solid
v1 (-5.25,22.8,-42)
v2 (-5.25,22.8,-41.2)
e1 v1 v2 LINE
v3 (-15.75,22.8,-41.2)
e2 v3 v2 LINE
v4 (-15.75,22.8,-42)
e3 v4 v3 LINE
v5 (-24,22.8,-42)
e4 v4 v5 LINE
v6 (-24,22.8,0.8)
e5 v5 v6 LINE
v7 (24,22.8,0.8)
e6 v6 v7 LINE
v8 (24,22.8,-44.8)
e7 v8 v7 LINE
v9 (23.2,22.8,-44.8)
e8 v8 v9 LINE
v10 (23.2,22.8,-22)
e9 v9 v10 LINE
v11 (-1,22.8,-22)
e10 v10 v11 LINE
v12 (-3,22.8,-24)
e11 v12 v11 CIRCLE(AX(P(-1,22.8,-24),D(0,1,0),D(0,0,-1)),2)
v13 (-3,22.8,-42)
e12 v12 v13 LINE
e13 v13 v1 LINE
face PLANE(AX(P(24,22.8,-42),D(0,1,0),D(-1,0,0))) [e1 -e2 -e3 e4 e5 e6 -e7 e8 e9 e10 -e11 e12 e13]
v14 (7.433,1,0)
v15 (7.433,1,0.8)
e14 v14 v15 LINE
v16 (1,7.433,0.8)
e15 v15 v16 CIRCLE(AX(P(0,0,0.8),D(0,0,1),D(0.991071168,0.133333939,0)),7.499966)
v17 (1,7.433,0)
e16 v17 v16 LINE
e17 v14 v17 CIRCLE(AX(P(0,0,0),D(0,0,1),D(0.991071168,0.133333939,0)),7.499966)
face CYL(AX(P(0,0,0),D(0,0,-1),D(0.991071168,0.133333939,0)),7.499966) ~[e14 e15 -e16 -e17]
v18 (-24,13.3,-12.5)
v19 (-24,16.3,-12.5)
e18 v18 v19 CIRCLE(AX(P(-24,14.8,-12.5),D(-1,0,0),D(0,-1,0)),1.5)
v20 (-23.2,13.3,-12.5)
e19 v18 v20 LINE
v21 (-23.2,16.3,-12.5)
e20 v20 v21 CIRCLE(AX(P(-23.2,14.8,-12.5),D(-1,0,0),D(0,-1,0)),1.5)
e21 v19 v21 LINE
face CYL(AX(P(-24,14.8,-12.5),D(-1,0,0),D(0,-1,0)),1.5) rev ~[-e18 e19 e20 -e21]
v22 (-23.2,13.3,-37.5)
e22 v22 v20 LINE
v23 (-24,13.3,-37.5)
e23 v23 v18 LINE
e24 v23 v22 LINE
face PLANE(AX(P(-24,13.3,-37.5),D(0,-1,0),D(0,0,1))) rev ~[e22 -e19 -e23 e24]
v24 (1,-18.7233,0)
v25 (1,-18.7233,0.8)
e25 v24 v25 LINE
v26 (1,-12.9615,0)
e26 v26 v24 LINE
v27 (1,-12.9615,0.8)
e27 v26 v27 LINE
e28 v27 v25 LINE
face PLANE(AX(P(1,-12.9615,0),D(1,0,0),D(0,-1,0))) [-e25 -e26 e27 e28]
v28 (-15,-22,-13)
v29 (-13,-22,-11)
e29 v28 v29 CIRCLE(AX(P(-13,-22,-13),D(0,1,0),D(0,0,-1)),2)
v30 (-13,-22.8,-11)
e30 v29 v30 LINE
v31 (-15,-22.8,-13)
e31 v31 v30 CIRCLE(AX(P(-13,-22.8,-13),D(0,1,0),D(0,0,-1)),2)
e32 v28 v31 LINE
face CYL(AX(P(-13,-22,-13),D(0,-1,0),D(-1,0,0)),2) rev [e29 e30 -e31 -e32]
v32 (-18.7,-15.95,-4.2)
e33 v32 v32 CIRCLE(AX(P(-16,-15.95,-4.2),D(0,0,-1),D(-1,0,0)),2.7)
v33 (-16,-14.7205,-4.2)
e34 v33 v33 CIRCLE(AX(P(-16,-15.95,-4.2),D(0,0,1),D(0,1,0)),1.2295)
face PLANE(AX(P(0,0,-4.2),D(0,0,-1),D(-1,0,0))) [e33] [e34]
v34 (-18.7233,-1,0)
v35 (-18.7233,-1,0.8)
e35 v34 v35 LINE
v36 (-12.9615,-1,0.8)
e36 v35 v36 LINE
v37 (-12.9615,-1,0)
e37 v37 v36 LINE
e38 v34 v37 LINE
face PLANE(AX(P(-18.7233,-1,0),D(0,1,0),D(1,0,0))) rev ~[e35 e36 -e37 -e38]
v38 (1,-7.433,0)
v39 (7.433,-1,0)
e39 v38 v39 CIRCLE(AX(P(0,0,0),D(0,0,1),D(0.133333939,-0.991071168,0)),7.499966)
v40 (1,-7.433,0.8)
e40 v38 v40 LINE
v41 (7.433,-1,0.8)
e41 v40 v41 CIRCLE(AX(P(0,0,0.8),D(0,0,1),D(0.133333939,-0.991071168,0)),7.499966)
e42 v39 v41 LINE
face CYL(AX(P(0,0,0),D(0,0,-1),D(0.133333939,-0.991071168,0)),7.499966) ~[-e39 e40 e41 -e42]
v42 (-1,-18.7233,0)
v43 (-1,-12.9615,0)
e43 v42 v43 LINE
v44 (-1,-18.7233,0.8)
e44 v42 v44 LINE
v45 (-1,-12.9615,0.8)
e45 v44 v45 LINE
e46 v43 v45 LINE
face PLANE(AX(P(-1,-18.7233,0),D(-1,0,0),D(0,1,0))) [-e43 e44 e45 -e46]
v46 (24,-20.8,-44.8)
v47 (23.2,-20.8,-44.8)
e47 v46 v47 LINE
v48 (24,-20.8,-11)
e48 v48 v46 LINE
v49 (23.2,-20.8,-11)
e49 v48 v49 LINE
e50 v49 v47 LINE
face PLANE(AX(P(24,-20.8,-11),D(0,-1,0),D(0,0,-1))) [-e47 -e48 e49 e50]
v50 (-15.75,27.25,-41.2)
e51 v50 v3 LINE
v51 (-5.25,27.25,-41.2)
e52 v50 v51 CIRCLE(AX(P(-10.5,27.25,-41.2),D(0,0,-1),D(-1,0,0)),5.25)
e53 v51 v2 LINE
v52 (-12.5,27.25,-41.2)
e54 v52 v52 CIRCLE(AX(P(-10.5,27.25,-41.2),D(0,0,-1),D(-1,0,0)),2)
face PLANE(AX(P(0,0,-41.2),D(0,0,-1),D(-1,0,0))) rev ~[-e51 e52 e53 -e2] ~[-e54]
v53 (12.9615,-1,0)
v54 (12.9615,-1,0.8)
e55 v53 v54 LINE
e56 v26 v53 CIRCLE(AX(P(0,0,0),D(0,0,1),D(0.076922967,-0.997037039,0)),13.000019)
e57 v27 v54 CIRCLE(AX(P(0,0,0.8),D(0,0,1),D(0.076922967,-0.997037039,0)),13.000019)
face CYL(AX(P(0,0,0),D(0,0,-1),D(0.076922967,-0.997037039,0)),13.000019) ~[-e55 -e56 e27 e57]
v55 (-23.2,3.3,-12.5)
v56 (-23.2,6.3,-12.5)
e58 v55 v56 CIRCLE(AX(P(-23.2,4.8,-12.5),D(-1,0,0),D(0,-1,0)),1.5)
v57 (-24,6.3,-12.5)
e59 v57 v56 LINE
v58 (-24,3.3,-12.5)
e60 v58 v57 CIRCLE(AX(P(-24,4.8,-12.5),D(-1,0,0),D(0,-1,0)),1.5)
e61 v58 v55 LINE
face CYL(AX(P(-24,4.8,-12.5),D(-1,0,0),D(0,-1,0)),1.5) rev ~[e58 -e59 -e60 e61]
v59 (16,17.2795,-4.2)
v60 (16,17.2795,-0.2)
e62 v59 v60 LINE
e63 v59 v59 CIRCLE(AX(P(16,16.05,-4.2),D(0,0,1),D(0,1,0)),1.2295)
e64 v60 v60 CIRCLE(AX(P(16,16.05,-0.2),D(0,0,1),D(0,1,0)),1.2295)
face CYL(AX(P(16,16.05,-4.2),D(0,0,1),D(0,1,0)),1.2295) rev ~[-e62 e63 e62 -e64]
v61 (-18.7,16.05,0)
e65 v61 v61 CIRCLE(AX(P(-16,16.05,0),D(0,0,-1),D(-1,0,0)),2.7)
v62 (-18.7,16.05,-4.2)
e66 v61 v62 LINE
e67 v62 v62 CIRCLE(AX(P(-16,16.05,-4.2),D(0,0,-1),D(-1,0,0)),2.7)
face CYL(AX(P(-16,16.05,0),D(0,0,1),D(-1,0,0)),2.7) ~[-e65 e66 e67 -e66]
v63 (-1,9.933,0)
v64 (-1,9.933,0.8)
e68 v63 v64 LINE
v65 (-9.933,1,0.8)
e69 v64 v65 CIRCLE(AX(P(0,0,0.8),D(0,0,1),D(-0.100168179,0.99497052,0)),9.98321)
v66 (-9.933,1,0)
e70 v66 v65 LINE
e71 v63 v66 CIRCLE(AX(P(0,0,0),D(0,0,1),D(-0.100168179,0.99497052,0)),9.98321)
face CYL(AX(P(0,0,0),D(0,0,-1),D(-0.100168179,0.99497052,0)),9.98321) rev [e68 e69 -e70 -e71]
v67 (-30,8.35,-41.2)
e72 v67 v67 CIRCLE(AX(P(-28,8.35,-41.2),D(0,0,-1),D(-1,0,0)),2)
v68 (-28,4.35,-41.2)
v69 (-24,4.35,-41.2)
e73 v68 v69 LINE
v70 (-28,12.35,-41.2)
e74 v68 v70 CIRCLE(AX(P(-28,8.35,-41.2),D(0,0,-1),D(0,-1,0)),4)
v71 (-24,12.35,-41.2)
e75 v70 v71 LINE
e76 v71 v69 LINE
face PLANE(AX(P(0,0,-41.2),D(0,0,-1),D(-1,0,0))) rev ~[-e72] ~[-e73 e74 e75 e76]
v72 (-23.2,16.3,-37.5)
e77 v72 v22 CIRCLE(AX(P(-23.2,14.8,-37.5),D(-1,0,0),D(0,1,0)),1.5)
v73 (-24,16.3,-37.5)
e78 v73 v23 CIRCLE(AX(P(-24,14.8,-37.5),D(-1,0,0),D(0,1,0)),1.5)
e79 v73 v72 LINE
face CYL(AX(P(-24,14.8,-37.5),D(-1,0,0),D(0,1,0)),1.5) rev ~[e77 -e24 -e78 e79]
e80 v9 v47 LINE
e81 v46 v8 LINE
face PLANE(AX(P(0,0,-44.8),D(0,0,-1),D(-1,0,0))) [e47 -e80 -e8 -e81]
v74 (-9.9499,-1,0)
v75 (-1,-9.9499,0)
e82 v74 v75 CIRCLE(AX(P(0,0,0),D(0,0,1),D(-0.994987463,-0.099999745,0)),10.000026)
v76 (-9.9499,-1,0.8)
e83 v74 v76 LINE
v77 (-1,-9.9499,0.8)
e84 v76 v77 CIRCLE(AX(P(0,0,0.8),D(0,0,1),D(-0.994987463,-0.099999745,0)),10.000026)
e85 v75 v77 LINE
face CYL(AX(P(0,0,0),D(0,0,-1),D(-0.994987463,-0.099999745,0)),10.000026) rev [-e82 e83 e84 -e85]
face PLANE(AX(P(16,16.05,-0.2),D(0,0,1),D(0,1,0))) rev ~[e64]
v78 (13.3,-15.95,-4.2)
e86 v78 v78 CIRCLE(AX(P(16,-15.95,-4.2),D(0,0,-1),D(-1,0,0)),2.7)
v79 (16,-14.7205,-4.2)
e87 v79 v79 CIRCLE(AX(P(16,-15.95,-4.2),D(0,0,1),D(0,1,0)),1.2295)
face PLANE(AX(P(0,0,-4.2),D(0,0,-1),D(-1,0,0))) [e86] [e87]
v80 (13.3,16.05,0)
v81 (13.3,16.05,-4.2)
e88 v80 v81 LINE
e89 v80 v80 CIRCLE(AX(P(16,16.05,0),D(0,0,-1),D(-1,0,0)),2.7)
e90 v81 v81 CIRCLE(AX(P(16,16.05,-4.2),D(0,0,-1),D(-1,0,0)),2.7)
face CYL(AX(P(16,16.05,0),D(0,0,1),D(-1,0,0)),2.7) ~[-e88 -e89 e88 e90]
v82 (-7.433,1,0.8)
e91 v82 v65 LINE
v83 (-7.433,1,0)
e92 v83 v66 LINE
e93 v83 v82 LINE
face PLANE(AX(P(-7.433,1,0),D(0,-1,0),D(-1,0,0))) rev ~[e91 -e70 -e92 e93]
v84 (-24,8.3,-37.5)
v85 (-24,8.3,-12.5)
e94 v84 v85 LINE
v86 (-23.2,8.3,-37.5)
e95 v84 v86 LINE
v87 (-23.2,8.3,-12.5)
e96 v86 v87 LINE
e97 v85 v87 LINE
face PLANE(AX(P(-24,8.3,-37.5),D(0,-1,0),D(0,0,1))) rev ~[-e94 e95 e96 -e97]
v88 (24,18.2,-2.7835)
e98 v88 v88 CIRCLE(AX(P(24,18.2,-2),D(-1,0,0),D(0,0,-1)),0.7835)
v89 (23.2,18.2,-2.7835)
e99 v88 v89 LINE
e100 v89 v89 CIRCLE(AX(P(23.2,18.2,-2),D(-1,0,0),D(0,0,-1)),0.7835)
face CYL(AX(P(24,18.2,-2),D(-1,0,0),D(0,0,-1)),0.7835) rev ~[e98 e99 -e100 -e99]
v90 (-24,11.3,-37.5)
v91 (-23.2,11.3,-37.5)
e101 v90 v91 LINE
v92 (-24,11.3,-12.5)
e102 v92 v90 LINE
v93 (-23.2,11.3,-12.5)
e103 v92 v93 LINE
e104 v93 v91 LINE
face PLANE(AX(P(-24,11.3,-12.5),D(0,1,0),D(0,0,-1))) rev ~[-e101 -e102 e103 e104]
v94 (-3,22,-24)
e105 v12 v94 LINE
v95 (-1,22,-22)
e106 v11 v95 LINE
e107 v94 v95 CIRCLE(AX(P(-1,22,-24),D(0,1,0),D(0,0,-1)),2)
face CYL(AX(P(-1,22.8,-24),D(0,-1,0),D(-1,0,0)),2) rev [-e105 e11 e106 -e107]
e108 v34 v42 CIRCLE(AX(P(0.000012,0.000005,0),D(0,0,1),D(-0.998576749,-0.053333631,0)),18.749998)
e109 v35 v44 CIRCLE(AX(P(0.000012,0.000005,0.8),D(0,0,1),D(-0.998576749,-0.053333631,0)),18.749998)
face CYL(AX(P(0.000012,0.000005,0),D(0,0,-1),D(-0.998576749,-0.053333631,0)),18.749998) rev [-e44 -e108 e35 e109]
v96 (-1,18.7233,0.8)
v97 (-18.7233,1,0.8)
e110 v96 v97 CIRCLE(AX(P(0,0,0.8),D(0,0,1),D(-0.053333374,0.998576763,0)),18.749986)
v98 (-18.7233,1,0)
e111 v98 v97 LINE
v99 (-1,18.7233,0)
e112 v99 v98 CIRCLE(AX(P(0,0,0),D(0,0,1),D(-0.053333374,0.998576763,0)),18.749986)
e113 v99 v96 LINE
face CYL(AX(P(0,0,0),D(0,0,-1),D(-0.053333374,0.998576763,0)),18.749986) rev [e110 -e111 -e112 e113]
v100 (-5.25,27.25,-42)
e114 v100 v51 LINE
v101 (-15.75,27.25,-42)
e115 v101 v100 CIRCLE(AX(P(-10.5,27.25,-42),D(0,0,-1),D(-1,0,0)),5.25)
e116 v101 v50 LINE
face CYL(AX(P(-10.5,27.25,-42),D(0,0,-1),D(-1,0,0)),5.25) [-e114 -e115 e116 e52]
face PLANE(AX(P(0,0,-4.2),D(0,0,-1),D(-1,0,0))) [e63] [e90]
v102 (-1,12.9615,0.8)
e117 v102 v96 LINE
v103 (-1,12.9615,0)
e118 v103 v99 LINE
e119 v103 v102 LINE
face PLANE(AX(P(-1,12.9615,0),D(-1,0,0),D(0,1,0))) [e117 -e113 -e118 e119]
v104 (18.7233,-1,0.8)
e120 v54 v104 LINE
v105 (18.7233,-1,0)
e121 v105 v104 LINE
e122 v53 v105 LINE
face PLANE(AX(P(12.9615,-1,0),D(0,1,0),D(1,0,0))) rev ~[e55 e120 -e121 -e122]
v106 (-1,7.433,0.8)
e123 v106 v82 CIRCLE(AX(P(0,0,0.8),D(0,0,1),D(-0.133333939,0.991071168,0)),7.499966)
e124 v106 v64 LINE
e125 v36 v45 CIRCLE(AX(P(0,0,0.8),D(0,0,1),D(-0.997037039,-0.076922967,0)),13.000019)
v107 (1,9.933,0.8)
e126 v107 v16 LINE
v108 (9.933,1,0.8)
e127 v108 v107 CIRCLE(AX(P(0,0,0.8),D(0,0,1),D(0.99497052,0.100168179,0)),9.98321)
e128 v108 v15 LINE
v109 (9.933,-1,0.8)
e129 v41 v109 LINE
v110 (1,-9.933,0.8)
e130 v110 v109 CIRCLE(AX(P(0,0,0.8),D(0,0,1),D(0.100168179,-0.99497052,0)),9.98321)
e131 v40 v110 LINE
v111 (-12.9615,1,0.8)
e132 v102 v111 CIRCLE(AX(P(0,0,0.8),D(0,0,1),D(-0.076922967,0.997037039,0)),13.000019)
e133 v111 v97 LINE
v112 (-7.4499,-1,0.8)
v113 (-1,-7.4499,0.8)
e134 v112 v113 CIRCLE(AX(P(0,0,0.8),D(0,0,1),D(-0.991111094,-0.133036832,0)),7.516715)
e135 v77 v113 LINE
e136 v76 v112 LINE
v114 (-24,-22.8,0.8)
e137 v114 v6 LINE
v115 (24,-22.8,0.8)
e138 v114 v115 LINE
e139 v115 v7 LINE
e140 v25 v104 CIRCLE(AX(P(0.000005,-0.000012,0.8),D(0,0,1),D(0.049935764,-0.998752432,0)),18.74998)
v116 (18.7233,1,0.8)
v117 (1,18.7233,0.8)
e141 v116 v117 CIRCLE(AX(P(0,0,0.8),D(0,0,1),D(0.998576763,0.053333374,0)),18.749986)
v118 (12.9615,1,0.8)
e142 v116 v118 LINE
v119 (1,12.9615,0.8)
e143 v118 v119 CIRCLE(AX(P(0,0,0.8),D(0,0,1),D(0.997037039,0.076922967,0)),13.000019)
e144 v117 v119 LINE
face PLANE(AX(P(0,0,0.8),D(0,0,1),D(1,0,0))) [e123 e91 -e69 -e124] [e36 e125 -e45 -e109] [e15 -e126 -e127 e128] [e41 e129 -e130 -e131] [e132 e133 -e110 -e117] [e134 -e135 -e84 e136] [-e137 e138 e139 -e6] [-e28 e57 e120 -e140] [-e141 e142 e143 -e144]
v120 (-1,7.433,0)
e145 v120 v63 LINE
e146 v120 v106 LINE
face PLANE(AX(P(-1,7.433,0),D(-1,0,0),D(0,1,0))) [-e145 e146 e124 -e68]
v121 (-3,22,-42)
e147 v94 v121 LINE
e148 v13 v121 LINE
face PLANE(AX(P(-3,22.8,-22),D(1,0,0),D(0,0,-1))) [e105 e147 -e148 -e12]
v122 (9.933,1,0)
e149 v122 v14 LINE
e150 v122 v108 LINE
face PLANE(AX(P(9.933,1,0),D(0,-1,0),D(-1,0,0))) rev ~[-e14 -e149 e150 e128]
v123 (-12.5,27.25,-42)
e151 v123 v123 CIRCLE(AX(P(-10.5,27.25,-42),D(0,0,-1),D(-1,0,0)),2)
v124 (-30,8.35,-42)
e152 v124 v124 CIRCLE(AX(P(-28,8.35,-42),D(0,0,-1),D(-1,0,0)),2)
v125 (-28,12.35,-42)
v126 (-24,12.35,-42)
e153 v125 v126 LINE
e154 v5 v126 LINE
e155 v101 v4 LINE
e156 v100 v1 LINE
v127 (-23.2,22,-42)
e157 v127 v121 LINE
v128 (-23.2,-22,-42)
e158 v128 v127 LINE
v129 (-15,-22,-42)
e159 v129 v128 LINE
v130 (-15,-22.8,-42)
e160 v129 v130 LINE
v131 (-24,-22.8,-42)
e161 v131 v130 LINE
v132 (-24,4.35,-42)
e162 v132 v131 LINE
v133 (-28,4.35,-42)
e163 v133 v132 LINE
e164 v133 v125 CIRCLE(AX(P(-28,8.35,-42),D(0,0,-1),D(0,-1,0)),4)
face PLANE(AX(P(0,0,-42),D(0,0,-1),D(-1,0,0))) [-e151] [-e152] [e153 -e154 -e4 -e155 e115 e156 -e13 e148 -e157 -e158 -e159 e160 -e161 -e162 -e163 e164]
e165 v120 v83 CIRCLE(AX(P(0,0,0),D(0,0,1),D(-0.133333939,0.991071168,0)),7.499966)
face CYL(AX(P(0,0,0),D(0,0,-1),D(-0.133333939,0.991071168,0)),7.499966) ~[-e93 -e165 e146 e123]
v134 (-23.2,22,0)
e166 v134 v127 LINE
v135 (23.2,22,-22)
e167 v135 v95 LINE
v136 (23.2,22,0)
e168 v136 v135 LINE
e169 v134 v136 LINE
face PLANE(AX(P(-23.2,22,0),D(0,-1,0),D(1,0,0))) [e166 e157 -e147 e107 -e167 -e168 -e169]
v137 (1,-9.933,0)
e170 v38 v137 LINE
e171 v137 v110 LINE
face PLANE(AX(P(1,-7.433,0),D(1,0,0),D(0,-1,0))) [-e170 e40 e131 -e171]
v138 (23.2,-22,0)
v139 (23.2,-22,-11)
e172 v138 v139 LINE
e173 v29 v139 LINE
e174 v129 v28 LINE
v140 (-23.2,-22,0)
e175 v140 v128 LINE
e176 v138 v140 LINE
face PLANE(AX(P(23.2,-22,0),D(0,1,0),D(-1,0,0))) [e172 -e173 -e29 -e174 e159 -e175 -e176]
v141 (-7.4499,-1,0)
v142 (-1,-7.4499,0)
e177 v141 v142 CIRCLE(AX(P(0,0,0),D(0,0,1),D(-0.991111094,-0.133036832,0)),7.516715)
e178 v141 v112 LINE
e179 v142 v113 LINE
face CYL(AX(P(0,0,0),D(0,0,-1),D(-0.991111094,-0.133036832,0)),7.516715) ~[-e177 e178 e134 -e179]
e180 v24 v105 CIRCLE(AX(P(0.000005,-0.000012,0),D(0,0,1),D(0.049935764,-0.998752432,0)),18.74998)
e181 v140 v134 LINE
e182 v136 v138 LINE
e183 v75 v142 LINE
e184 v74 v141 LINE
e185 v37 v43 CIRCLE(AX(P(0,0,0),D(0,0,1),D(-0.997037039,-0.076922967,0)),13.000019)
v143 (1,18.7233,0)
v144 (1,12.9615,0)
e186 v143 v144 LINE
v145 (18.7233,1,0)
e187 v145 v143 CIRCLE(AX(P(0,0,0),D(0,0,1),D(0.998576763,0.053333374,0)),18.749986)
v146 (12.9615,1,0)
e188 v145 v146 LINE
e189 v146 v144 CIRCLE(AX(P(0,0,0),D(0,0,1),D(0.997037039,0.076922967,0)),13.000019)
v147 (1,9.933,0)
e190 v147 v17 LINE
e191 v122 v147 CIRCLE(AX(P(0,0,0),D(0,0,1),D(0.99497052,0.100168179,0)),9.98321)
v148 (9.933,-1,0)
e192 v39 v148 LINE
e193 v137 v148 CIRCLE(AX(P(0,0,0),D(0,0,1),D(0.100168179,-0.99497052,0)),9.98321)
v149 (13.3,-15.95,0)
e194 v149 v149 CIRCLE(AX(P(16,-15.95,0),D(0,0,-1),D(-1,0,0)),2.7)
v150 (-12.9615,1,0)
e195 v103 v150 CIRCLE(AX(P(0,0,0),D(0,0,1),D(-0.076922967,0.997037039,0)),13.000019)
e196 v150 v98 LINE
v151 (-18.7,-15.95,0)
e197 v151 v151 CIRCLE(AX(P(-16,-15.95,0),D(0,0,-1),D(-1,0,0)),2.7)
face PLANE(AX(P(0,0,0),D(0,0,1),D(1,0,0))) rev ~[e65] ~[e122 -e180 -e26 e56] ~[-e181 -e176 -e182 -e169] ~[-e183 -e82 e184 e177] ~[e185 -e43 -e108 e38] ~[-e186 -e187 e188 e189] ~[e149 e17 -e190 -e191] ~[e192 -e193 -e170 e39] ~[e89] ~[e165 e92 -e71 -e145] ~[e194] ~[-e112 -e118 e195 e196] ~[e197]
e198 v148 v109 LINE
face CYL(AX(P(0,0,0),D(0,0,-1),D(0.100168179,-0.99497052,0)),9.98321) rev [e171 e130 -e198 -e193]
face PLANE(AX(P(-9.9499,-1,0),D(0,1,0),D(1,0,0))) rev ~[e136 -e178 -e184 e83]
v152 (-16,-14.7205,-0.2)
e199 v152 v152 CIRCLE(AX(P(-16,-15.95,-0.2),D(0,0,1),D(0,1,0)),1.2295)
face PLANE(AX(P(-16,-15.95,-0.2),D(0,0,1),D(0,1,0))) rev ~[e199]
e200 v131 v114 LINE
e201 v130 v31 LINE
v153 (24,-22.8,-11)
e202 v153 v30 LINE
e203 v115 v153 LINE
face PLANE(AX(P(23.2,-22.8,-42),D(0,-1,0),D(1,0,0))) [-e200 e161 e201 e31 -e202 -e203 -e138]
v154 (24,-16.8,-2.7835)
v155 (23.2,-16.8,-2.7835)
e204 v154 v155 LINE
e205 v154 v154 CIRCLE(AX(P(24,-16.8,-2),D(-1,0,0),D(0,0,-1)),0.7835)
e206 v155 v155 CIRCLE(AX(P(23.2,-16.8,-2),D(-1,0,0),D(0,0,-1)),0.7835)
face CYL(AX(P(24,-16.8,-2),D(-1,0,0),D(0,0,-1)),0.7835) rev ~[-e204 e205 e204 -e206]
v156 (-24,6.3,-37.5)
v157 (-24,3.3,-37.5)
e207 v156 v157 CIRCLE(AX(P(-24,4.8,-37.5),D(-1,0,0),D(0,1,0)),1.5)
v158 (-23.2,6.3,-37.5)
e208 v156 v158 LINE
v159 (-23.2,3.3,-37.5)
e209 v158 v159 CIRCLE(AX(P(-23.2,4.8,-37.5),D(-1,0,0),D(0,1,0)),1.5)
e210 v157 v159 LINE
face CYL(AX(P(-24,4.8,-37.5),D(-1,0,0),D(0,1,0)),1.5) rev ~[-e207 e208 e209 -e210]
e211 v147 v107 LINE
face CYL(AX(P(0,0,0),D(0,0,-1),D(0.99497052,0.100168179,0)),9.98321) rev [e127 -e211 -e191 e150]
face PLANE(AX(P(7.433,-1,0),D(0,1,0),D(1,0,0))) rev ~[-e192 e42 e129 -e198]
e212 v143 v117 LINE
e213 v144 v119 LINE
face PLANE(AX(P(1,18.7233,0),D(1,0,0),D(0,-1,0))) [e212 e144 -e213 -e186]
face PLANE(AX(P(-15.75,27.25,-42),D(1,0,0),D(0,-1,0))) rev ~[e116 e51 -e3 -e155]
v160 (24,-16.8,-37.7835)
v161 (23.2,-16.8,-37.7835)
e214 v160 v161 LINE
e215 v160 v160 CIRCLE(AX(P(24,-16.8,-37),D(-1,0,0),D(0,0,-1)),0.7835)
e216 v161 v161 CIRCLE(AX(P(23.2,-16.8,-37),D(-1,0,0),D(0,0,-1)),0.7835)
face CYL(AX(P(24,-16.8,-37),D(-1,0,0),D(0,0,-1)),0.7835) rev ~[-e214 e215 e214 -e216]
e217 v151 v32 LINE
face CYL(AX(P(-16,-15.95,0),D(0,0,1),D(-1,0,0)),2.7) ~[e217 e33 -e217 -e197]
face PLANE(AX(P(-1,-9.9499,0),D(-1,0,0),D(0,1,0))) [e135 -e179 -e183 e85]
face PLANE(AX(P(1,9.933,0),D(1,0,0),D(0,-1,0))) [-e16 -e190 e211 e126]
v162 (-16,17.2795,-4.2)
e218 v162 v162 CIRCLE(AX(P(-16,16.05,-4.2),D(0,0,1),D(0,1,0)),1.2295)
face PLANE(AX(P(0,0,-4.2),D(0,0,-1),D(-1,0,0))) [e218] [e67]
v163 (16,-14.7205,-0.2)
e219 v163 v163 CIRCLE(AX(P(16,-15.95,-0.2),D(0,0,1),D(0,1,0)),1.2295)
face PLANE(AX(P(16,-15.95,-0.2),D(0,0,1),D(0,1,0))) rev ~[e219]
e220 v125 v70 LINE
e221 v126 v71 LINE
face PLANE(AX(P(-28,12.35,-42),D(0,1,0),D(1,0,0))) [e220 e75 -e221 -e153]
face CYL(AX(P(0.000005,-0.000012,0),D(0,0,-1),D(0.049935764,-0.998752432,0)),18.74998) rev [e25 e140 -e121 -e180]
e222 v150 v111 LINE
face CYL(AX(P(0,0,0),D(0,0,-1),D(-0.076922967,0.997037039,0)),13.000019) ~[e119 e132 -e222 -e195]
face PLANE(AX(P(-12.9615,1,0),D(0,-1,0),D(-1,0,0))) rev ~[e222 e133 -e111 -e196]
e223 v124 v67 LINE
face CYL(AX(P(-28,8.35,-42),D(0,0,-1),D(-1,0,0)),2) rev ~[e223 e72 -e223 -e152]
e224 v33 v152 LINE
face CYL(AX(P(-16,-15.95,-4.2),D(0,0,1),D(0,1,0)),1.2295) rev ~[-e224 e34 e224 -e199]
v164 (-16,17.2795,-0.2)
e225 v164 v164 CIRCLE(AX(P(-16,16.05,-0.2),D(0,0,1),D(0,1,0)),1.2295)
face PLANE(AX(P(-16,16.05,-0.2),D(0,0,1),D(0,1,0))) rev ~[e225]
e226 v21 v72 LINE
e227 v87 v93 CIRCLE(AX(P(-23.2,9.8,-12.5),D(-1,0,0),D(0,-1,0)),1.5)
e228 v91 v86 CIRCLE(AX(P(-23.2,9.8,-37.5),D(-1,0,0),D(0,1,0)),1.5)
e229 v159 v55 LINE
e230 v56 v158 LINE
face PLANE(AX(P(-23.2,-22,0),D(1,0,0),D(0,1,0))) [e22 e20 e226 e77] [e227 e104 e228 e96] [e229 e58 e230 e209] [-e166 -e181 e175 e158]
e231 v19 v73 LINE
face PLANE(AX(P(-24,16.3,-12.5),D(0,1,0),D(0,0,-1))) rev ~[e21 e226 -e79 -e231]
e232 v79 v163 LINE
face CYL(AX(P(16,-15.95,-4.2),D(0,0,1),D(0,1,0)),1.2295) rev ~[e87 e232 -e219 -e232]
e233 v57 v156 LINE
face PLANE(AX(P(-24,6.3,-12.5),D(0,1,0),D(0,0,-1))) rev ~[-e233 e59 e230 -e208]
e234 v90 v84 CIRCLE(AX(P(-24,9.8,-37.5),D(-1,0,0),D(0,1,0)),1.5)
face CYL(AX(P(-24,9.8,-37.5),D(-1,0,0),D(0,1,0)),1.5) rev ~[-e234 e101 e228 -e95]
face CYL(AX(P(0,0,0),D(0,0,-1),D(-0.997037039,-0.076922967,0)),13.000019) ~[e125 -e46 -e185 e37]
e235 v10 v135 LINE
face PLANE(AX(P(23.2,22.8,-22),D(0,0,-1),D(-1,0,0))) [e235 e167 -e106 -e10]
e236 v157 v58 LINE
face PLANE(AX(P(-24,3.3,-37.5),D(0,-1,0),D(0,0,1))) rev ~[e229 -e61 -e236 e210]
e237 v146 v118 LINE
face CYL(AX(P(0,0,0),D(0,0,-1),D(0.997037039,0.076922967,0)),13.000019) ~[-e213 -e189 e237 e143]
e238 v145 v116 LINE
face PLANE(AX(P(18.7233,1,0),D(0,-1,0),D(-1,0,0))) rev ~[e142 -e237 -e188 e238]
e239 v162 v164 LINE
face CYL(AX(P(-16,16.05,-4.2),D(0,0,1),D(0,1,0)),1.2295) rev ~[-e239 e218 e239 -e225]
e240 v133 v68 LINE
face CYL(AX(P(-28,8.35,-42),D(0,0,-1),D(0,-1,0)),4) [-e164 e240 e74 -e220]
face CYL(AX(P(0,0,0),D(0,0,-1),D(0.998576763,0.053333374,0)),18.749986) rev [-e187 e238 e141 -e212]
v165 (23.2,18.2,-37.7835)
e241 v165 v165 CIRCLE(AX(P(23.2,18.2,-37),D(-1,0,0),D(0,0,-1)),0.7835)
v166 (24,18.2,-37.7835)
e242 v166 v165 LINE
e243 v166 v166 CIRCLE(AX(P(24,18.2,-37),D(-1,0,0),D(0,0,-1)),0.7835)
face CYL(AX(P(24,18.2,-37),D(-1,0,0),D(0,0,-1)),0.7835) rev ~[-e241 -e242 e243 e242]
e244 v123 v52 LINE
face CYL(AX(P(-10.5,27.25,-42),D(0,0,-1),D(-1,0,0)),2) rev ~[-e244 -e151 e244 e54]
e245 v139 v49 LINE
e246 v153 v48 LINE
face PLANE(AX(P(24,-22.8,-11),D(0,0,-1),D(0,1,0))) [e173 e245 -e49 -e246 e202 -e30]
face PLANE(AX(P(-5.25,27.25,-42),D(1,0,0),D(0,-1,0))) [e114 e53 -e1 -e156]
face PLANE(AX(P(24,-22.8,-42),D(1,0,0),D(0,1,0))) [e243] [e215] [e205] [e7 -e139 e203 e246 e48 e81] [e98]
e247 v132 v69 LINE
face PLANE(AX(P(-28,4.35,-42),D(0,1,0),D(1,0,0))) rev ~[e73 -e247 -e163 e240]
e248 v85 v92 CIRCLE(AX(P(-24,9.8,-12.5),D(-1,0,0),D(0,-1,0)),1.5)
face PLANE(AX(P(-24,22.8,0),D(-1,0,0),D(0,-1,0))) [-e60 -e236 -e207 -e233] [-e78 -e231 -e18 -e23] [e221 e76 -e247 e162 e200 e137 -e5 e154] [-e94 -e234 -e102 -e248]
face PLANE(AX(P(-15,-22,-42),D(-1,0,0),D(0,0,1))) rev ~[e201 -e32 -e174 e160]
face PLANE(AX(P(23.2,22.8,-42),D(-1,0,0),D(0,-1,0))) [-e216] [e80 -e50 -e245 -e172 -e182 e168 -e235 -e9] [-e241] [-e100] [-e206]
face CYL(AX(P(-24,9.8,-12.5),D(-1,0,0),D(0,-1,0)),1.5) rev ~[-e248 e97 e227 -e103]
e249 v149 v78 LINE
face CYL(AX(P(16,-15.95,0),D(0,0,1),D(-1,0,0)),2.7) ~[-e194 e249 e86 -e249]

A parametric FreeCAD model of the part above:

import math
import FreeCAD as App
import Part
import Sketcher
from FreeCAD import Vector
Q = App.Units.Quantity


def edges_at(feature, points):
    """Names of the edges that pass closest to the given points."""
    edges = feature.Shape.Edges
    near = lambda p: min(range(len(edges)), key=lambda i: edges[i].distToShape(Part.Vertex(*p))[0])
    return sorted({f"Edge{near(p) + 1}" for p in points})


def add_polygon(sketch, points):
    """Adds a closed chain of lines whose ends are joined by coincident constraints."""
    first, n = sketch.GeometryCount, len(points)
    for a, b in zip(points, points[1:] + points[:1]):
        sketch.addGeometry(Part.LineSegment(App.Vector(*a, 0), App.Vector(*b, 0)), False)
    for i in range(n):
        sketch.addConstraint(Sketcher.Constraint("Coincident", first + i, 2, first + (i + 1) % n, 1))

doc = App.newDocument("Part")
body = doc.addObject("PartDesign::Body", "Body")

sketch1 = doc.addObject("Sketcher::SketchObject", "Sketch")
body.addObject(sketch1)
sketch1.AttachmentSupport = (doc.XY_Plane, [""])
sketch1.MapMode = "FlatFace"
add_polygon(sketch1, [(-24, 22.8), (-24, -22.8), (24, -22.8), (24, 22.8)])
sketch1.addGeometry(Part.ArcOfCircle(Part.Circle(Vector(0, 0, 0), Vector(0, 0, 1), 10), math.radians(96), math.radians(174)), False)
sketch1.addGeometry(Part.LineSegment(Vector(-1, 9.9, 0), Vector(-1, 7.4, 0)), False)
sketch1.addGeometry(Part.ArcOfCircle(Part.Circle(Vector(0, 0, 0), Vector(0, 0, 1), 7.5), math.radians(98), math.radians(172)), False)
sketch1.addGeometry(Part.LineSegment(Vector(-7.4, 1, 0), Vector(-9.9, 1, 0)), False)
sketch1.addGeometry(Part.ArcOfCircle(Part.Circle(Vector(0, 0, 0), Vector(0, 0, 1), 18.7), math.radians(93), math.radians(177)), False)
sketch1.addGeometry(Part.LineSegment(Vector(-1, 18.7, 0), Vector(-1, 13, 0)), False)
sketch1.addGeometry(Part.ArcOfCircle(Part.Circle(Vector(0, 0, 0), Vector(0, 0, 1), 13), math.radians(94), math.radians(176)), False)
sketch1.addGeometry(Part.LineSegment(Vector(-13, 1, 0), Vector(-18.7, 1, 0)), False)
sketch1.addGeometry(Part.ArcOfCircle(Part.Circle(Vector(0, 0, 0), Vector(0, 0, 1), 10), math.radians(6), math.radians(84)), False)
sketch1.addGeometry(Part.LineSegment(Vector(9.9, 1, 0), Vector(7.4, 1, 0)), False)
sketch1.addGeometry(Part.ArcOfCircle(Part.Circle(Vector(0, 0, 0), Vector(0, 0, 1), 7.5), math.radians(8), math.radians(82)), False)
sketch1.addGeometry(Part.LineSegment(Vector(1, 7.4, 0), Vector(1, 9.9, 0)), False)
sketch1.addGeometry(Part.ArcOfCircle(Part.Circle(Vector(0, 0, 0), Vector(0, 0, 1), 18.7), math.radians(3), math.radians(87)), False)
sketch1.addGeometry(Part.LineSegment(Vector(18.7, 1, 0), Vector(13, 1, 0)), False)
sketch1.addGeometry(Part.ArcOfCircle(Part.Circle(Vector(0, 0, 0), Vector(0, 0, 1), 13), math.radians(4), math.radians(86)), False)
sketch1.addGeometry(Part.LineSegment(Vector(1, 13, 0), Vector(1, 18.7, 0)), False)
sketch1.addGeometry(Part.LineSegment(Vector(-9.9, -1, 0), Vector(-7.4, -1, 0)), False)
sketch1.addGeometry(Part.ArcOfCircle(Part.Circle(Vector(0, 0, 0), Vector(0, 0, 1), 7.5), math.radians(-172), math.radians(-98)), False)
sketch1.addGeometry(Part.LineSegment(Vector(-1, -7.4, 0), Vector(-1, -9.9, 0)), False)
sketch1.addGeometry(Part.ArcOfCircle(Part.Circle(Vector(0, 0, 0), Vector(0, 0, 1), 10), math.radians(-174), math.radians(-96)), False)
sketch1.addGeometry(Part.LineSegment(Vector(-18.7, -1, 0), Vector(-13, -1, 0)), False)
sketch1.addGeometry(Part.ArcOfCircle(Part.Circle(Vector(0, 0, 0), Vector(0, 0, 1), 13), math.radians(-176), math.radians(-94)), False)
sketch1.addGeometry(Part.LineSegment(Vector(-1, -13, 0), Vector(-1, -18.7, 0)), False)
sketch1.addGeometry(Part.ArcOfCircle(Part.Circle(Vector(0, 0, 0), Vector(0, 0, 1), 18.7), math.radians(-177), math.radians(-93)), False)
sketch1.addGeometry(Part.LineSegment(Vector(1, -9.9, 0), Vector(1, -7.4, 0)), False)
sketch1.addGeometry(Part.ArcOfCircle(Part.Circle(Vector(0, 0, 0), Vector(0, 0, 1), 7.5), math.radians(-82), math.radians(-8)), False)
sketch1.addGeometry(Part.LineSegment(Vector(7.4, -1, 0), Vector(9.9, -1, 0)), False)
sketch1.addGeometry(Part.ArcOfCircle(Part.Circle(Vector(0, 0, 0), Vector(0, 0, 1), 10), math.radians(-84), math.radians(-6)), False)
sketch1.addGeometry(Part.LineSegment(Vector(1, -18.7, 0), Vector(1, -13, 0)), False)
sketch1.addGeometry(Part.ArcOfCircle(Part.Circle(Vector(0, 0, 0), Vector(0, 0, 1), 13), math.radians(-86), math.radians(-4)), False)
sketch1.addGeometry(Part.LineSegment(Vector(13, -1, 0), Vector(18.7, -1, 0)), False)
sketch1.addGeometry(Part.ArcOfCircle(Part.Circle(Vector(0, 0, 0), Vector(0, 0, 1), 18.7), math.radians(-87), math.radians(-3)), False)
sketch1.addConstraint([
    Sketcher.Constraint("Coincident", 4, 1, 5, 1),
    Sketcher.Constraint("Coincident", 5, 2, 6, 1),
    Sketcher.Constraint("Coincident", 6, 2, 7, 1),
    Sketcher.Constraint("Coincident", 7, 2, 4, 2),
    Sketcher.Constraint("Coincident", 8, 1, 9, 1),
    Sketcher.Constraint("Coincident", 9, 2, 10, 1),
    Sketcher.Constraint("Coincident", 10, 2, 11, 1),
    Sketcher.Constraint("Coincident", 11, 2, 8, 2),
    Sketcher.Constraint("Coincident", 12, 1, 13, 1),
    Sketcher.Constraint("Coincident", 13, 2, 14, 1),
    Sketcher.Constraint("Coincident", 14, 2, 15, 1),
    Sketcher.Constraint("Coincident", 15, 2, 12, 2),
    Sketcher.Constraint("Coincident", 16, 1, 17, 1),
    Sketcher.Constraint("Coincident", 17, 2, 18, 1),
    Sketcher.Constraint("Coincident", 18, 2, 19, 1),
    Sketcher.Constraint("Coincident", 19, 2, 16, 2),
    Sketcher.Constraint("Coincident", 20, 2, 21, 1),
    Sketcher.Constraint("Coincident", 21, 2, 22, 1),
    Sketcher.Constraint("Coincident", 22, 2, 23, 2),
    Sketcher.Constraint("Coincident", 23, 1, 20, 1),
    Sketcher.Constraint("Coincident", 24, 2, 25, 1),
    Sketcher.Constraint("Coincident", 25, 2, 26, 1),
    Sketcher.Constraint("Coincident", 26, 2, 27, 2),
    Sketcher.Constraint("Coincident", 27, 1, 24, 1),
    Sketcher.Constraint("Coincident", 28, 2, 29, 1),
    Sketcher.Constraint("Coincident", 29, 2, 30, 1),
    Sketcher.Constraint("Coincident", 30, 2, 31, 2),
    Sketcher.Constraint("Coincident", 31, 1, 28, 1),
    Sketcher.Constraint("Coincident", 32, 2, 33, 1),
    Sketcher.Constraint("Coincident", 33, 2, 34, 1),
    Sketcher.Constraint("Coincident", 34, 2, 35, 2),
    Sketcher.Constraint("Coincident", 35, 1, 32, 1),
    Sketcher.Constraint("Vertical", 0),
    Sketcher.Constraint("Horizontal", 1),
    Sketcher.Constraint("Vertical", 2),
    Sketcher.Constraint("Horizontal", 3),
    Sketcher.Constraint("Vertical", 5),
    Sketcher.Constraint("Horizontal", 7),
    Sketcher.Constraint("Vertical", 9),
    Sketcher.Constraint("Horizontal", 11),
    Sketcher.Constraint("Horizontal", 13),
    Sketcher.Constraint("Vertical", 15),
    Sketcher.Constraint("Horizontal", 17),
    Sketcher.Constraint("Vertical", 19),
    Sketcher.Constraint("Horizontal", 20),
    Sketcher.Constraint("Vertical", 22),
    Sketcher.Constraint("Horizontal", 24),
    Sketcher.Constraint("Vertical", 26),
    Sketcher.Constraint("Vertical", 28),
    Sketcher.Constraint("Horizontal", 30),
    Sketcher.Constraint("Vertical", 32),
    Sketcher.Constraint("Horizontal", 34),
    Sketcher.Constraint("Coincident", 4, 3, -1, 1),
    Sketcher.Constraint("Coincident", 6, 3, -1, 1),
    Sketcher.Constraint("Coincident", 8, 3, -1, 1),
    Sketcher.Constraint("Coincident", 10, 3, -1, 1),
    Sketcher.Constraint("Coincident", 12, 3, -1, 1),
    Sketcher.Constraint("Coincident", 14, 3, -1, 1),
    Sketcher.Constraint("Coincident", 16, 3, -1, 1),
    Sketcher.Constraint("Coincident", 18, 3, -1, 1),
    Sketcher.Constraint("Coincident", 21, 3, -1, 1),
    Sketcher.Constraint("Coincident", 23, 3, -1, 1),
    Sketcher.Constraint("Coincident", 25, 3, -1, 1),
    Sketcher.Constraint("Coincident", 27, 3, -1, 1),
    Sketcher.Constraint("Coincident", 29, 3, -1, 1),
    Sketcher.Constraint("Coincident", 31, 3, -1, 1),
    Sketcher.Constraint("Coincident", 33, 3, -1, 1),
    Sketcher.Constraint("Coincident", 35, 3, -1, 1),
    Sketcher.Constraint("Equal", 4, 12),
    Sketcher.Constraint("Equal", 6, 14),
    Sketcher.Constraint("Equal", 8, 16),
    Sketcher.Constraint("Equal", 10, 18),
    Sketcher.Constraint("Equal", 18, 25),
    Sketcher.Constraint("Equal", 16, 27),
    Sketcher.Constraint("Equal", 14, 29),
    Sketcher.Constraint("Equal", 12, 31),
    Sketcher.Constraint("Equal", 25, 33),
    Sketcher.Constraint("Equal", 27, 35),
    Sketcher.Constraint("Symmetric", 0, 2, 2, 2, -1, 1),
    Sketcher.Constraint("Horizontal", 7, 2, 10, 2),
    Sketcher.Constraint("Horizontal", 11, 2, 12, 1),
    Sketcher.Constraint("Horizontal", 5, 2, 14, 2),
    Sketcher.Constraint("Horizontal", 13, 2, 16, 1),
    Sketcher.Constraint("Horizontal", 9, 2, 18, 2),
    Sketcher.Constraint("Horizontal", 23, 1, 24, 2),
    Sketcher.Constraint("Horizontal", 27, 1, 29, 2),
    Sketcher.Constraint("Horizontal", 25, 2, 32, 2),
    Sketcher.Constraint("Horizontal", 30, 2, 33, 2),
    Sketcher.Constraint("Vertical", 5, 2, 8, 1),
    Sketcher.Constraint("Vertical", 9, 2, 21, 2),
    Sketcher.Constraint("Vertical", 10, 2, 24, 2),
    Sketcher.Constraint("Vertical", 22, 2, 25, 2),
    Sketcher.Constraint("Vertical", 19, 2, 28, 2),
    Sketcher.Constraint("Equal", 13, 20),
    Sketcher.Constraint("Equal", 30, 5),
    Sketcher.Constraint("DistanceX", 1, 1, 1, 2, Q("48 mm")),
    Sketcher.Constraint("DistanceX", 7, 2, 7, 1, Q("2.5 mm")),
    Sketcher.Constraint("DistanceY", 0, 2, 0, 1, Q("45.6 mm")),
    Sketcher.Constraint("Radius", 10, Q("13 mm")),
    Sketcher.Constraint("Radius", 23, Q("10 mm")),
    Sketcher.Constraint("DistanceX", 5, 2, 14, 2, Q("2 mm")),
    Sketcher.Constraint("Radius", 6, Q("7.5 mm")),
    Sketcher.Constraint("Radius", 8, Q("18.75 mm")),
])
pad1 = doc.addObject("PartDesign::Pad", "Pad")
body.addObject(pad1)
pad1.Profile = sketch1
pad1.Length = 0.8

sketch2 = doc.addObject("Sketcher::SketchObject", "Sketch001")
body.addObject(sketch2)
sketch2.AttachmentSupport = (doc.XY_Plane, [""])
sketch2.MapMode = "FlatFace"
add_polygon(sketch2, [(-24, 23), (24, 23), (24, -23), (-24, -23)])
add_polygon(sketch2, [(23, 22), (-23, 22), (-23, -22), (23, -22)])
sketch2.addConstraint([
    Sketcher.Constraint("Horizontal", 0),
    Sketcher.Constraint("Vertical", 1),
    Sketcher.Constraint("Horizontal", 2),
    Sketcher.Constraint("Vertical", 3),
    Sketcher.Constraint("Horizontal", 4),
    Sketcher.Constraint("Vertical", 5),
    Sketcher.Constraint("Horizontal", 6),
    Sketcher.Constraint("Vertical", 7),
    Sketcher.Constraint("Symmetric", 0, 2, 2, 2, -1, 1),
    Sketcher.Constraint("Symmetric", 4, 2, 6, 2, -1, 1),
    Sketcher.Constraint("DistanceX", 3, 2, 4, 2, Q("0.8 mm")),
    Sketcher.Constraint("DistanceY", 4, 2, 3, 2, Q("0.8 mm")),
    Sketcher.Constraint("DistanceX", 0, 1, 0, 2, Q("48 mm")),
    Sketcher.Constraint("DistanceY", 5, 2, 5, 1, Q("44 mm")),
])
pad2 = doc.addObject("PartDesign::Pad", "Pad001")
body.addObject(pad2)
pad2.Profile = sketch2
pad2.Length = 42
pad2.Reversed = True

sketch3 = doc.addObject("Sketcher::SketchObject", "Sketch002")
body.addObject(sketch3)
sketch3.AttachmentSupport = (doc.XY_Plane, [""])
sketch3.MapMode = "FlatFace"
sketch3.addGeometry([
    Part.Circle(Vector(16, 16.1, 0), Vector(0, 0, 1), 2.7),
    Part.Circle(Vector(-16, 16.1, 0), Vector(0, 0, 1), 2.7),
    Part.Circle(Vector(-16, -15.9, 0), Vector(0, 0, 1), 2.7),
    Part.Circle(Vector(16, -15.9, 0), Vector(0, 0, 1), 2.7),
], False)
sketch3.addConstraint([
    Sketcher.Constraint("Equal", 0, 1),
    Sketcher.Constraint("Equal", 1, 2),
    Sketcher.Constraint("Equal", 2, 3),
    Sketcher.Constraint("Symmetric", 0, 3, 1, 3, -2),
    Sketcher.Constraint("Symmetric", 2, 3, 3, 3, -2),
    Sketcher.Constraint("Vertical", 1, 3, 2, 3),
    Sketcher.Constraint("Diameter", 0, Q("5.4 mm")),
    Sketcher.Constraint("DistanceX", -1, 1, 0, 3, Q("16 mm")),
    Sketcher.Constraint("DistanceY", -1, 1, 0, 3, Q("16.05 mm")),
    Sketcher.Constraint("DistanceY", 2, 3, -1, 1, Q("15.95 mm")),
])
pad3 = doc.addObject("PartDesign::Pad", "Pad002")
body.addObject(pad3)
pad3.Profile = sketch3
pad3.Length = 4.2
pad3.Reversed = True

sketch4 = doc.addObject("Sketcher::SketchObject", "Sketch003")
body.addObject(sketch4)
sketch4.AttachmentSupport = (doc.XY_Plane, [""])
sketch4.MapMode = "FlatFace"
sketch4.AttachmentOffset = App.Placement(Vector(0, 0, -4.2), App.Rotation())
sketch4.addGeometry([
    Part.Circle(Vector(16, 16.1, 0), Vector(0, 0, 1), 1.2),
    Part.Circle(Vector(-16, 16.1, 0), Vector(0, 0, 1), 1.2),
    Part.Circle(Vector(-16, -15.9, 0), Vector(0, 0, 1), 1.2),
    Part.Circle(Vector(16, -15.9, 0), Vector(0, 0, 1), 1.2),
], False)
sketch4.addConstraint([
    Sketcher.Constraint("Equal", 0, 1),
    Sketcher.Constraint("Equal", 1, 2),
    Sketcher.Constraint("Equal", 2, 3),
    Sketcher.Constraint("Symmetric", 0, 3, 1, 3, -2),
    Sketcher.Constraint("Symmetric", 2, 3, 3, 3, -2),
    Sketcher.Constraint("Vertical", 1, 3, 2, 3),
    Sketcher.Constraint("Diameter", 0, Q("2.459 mm")),
    Sketcher.Constraint("DistanceX", -1, 1, 0, 3, Q("16 mm")),
    Sketcher.Constraint("DistanceY", 2, 3, 1, 3, Q("32 mm")),
    Sketcher.Constraint("DistanceY", -1, 1, 0, 3, Q("16.05 mm")),
])
doc.recompute()
hole = doc.addObject("PartDesign::Hole", "Hole")
body.addObject(hole)
hole.Profile = sketch4
hole.ThreadType = "None"
hole.Diameter = 2.459
hole.DepthType = "Dimension"
hole.Depth = 4
hole.DrillPoint = "Flat"
hole.Reversed = True

sketch5 = doc.addObject("Sketcher::SketchObject", "Sketch004")
body.addObject(sketch5)
sketch5.AttachmentSupport = (doc.XZ_Plane, [""])
sketch5.MapMode = "FlatFace"
sketch5.AttachmentOffset = App.Placement(Vector(0, 0, -22.8), App.Rotation())
add_polygon(sketch5, [(23, -42), (-3, -42), (-3, -22), (23, -22)])
sketch5.addConstraint([
    Sketcher.Constraint("Horizontal", 0),
    Sketcher.Constraint("Vertical", 1),
    Sketcher.Constraint("Horizontal", 2),
    Sketcher.Constraint("Vertical", 3),
    Sketcher.Constraint("DistanceY", 1, 1, 1, 2, Q("20 mm")),
    Sketcher.Constraint("DistanceX", 0, 2, 0, 1, Q("26.2 mm")),
    Sketcher.Constraint("DistanceX", 0, 2, -1, 1, Q("3 mm")),
    Sketcher.Constraint("DistanceY", 0, 2, -1, 1, Q("42 mm")),
])
pocket1 = doc.addObject("PartDesign::Pocket", "Pocket")
body.addObject(pocket1)
pocket1.Profile = sketch5
pocket1.Length = 0.8
pocket1.Reversed = True

sketch6 = doc.addObject("Sketcher::SketchObject", "Sketch005")
body.addObject(sketch6)
sketch6.AttachmentSupport = (doc.XZ_Plane, [""])
sketch6.MapMode = "FlatFace"
sketch6.AttachmentOffset = App.Placement(Vector(0, 0, 22), App.Rotation())
add_polygon(sketch6, [(23, -11), (23, -42), (-15, -42), (-15, -11)])
sketch6.addConstraint([
    Sketcher.Constraint("Vertical", 0),
    Sketcher.Constraint("Horizontal", 1),
    Sketcher.Constraint("Vertical", 2),
    Sketcher.Constraint("Horizontal", 3),
    Sketcher.Constraint("DistanceY", 0, 2, 0, 1, Q("31 mm")),
    Sketcher.Constraint("DistanceX", 1, 2, 1, 1, Q("38.2 mm")),
    Sketcher.Constraint("DistanceY", 0, 2, -1, 1, Q("42 mm")),
    Sketcher.Constraint("DistanceX", 1, 2, -1, 1, Q("15 mm")),
])
pocket2 = doc.addObject("PartDesign::Pocket", "Pocket001")
body.addObject(pocket2)
pocket2.Profile = sketch6
pocket2.Length = 0.8
pocket2.Reversed = True
doc.recompute()

fillet = doc.addObject("PartDesign::Fillet", "Fillet")
body.addObject(fillet)
fillet.Base = (pocket2, edges_at(pocket2, [(-3, 22.4, -22), (-15, -22.4, -11)]))
fillet.Radius = 2

sketch7 = doc.addObject("Sketcher::SketchObject", "Sketch006")
body.addObject(sketch7)
sketch7.AttachmentSupport = (doc.YZ_Plane, [""])
sketch7.MapMode = "FlatFace"
sketch7.AttachmentOffset = App.Placement(Vector(0, 0, -24), App.Rotation())
sketch7.addGeometry([
    Part.ArcOfCircle(Part.Circle(Vector(14.8, -37.5, 0), Vector(0, 0, 1), 1.5), math.radians(180), math.radians(360)),
    Part.LineSegment(Vector(13.3, -37.5, 0), Vector(13.3, -12.5, 0)),
    Part.ArcOfCircle(Part.Circle(Vector(14.8, -12.5, 0), Vector(0, 0, 1), 1.5), math.radians(0), math.radians(180)),
    Part.LineSegment(Vector(16.3, -12.5, 0), Vector(16.3, -37.5, 0)),
    Part.ArcOfCircle(Part.Circle(Vector(9.8, -12.5, 0), Vector(0, 0, 1), 1.5), math.radians(0), math.radians(180)),
    Part.LineSegment(Vector(11.3, -12.5, 0), Vector(11.3, -37.5, 0)),
    Part.ArcOfCircle(Part.Circle(Vector(9.8, -37.5, 0), Vector(0, 0, 1), 1.5), math.radians(180), math.radians(360)),
    Part.LineSegment(Vector(8.3, -37.5, 0), Vector(8.3, -12.5, 0)),
    Part.ArcOfCircle(Part.Circle(Vector(4.8, -12.5, 0), Vector(0, 0, 1), 1.5), math.radians(0), math.radians(180)),
    Part.LineSegment(Vector(6.3, -12.5, 0), Vector(6.3, -37.5, 0)),
    Part.ArcOfCircle(Part.Circle(Vector(4.8, -37.5, 0), Vector(0, 0, 1), 1.5), math.radians(180), math.radians(360)),
    Part.LineSegment(Vector(3.3, -37.5, 0), Vector(3.3, -12.5, 0)),
], False)
sketch7.addConstraint([
    Sketcher.Constraint("Tangent", 0, 1, 1, 1),
    Sketcher.Constraint("Tangent", 1, 2, 2, 2),
    Sketcher.Constraint("Tangent", 2, 1, 3, 1),
    Sketcher.Constraint("Tangent", 3, 2, 0, 2),
    Sketcher.Constraint("Tangent", 4, 1, 5, 1),
    Sketcher.Constraint("Tangent", 5, 2, 6, 2),
    Sketcher.Constraint("Tangent", 6, 1, 7, 1),
    Sketcher.Constraint("Tangent", 7, 2, 4, 2),
    Sketcher.Constraint("Tangent", 8, 1, 9, 1),
    Sketcher.Constraint("Tangent", 9, 2, 10, 2),
    Sketcher.Constraint("Tangent", 10, 1, 11, 1),
    Sketcher.Constraint("Tangent", 11, 2, 8, 2),
    Sketcher.Constraint("Vertical", 1),
    Sketcher.Constraint("Vertical", 3),
    Sketcher.Constraint("Vertical", 5),
    Sketcher.Constraint("Vertical", 7),
    Sketcher.Constraint("Vertical", 9),
    Sketcher.Constraint("Vertical", 11),
    Sketcher.Constraint("Equal", 2, 4),
    Sketcher.Constraint("Equal", 6, 8),
    Sketcher.Constraint("Horizontal", 2, 3, 4, 3),
    Sketcher.Constraint("Horizontal", 0, 3, 6, 3),
    Sketcher.Constraint("Horizontal", 4, 3, 8, 3),
    Sketcher.Constraint("Horizontal", 6, 3, 10, 3),
    Sketcher.Constraint("Radius", 0, Q("1.5 mm")),
    Sketcher.Constraint("DistanceY", 1, 1, 1, 2, Q("25 mm")),
    Sketcher.Constraint("DistanceX", 4, 3, 2, 3, Q("5 mm")),
    Sketcher.Constraint("DistanceX", 8, 3, 4, 3, Q("5 mm")),
    Sketcher.Constraint("DistanceX", -1, 1, 0, 3, Q("14.8 mm")),
    Sketcher.Constraint("DistanceY", 0, 3, -1, 1, Q("37.5 mm")),
])
pocket3 = doc.addObject("PartDesign::Pocket", "Pocket002")
body.addObject(pocket3)
pocket3.Profile = sketch7
pocket3.Length = 0.8
pocket3.Reversed = True

sketch8 = doc.addObject("Sketcher::SketchObject", "Sketch007")
body.addObject(sketch8)
sketch8.AttachmentSupport = (doc.YZ_Plane, [""])
sketch8.MapMode = "FlatFace"
sketch8.AttachmentOffset = App.Placement(Vector(0, 0, 24), App.Rotation())
sketch8.addGeometry([
    Part.Circle(Vector(18.2, -2, 0), Vector(0, 0, 1), 0.8),
    Part.Circle(Vector(18.2, -37, 0), Vector(0, 0, 1), 0.8),
    Part.Circle(Vector(-16.8, -37, 0), Vector(0, 0, 1), 0.8),
    Part.Circle(Vector(-16.8, -2, 0), Vector(0, 0, 1), 0.8),
], False)
sketch8.addConstraint([
    Sketcher.Constraint("Equal", 0, 1),
    Sketcher.Constraint("Equal", 1, 2),
    Sketcher.Constraint("Equal", 2, 3),
    Sketcher.Constraint("Horizontal", 1, 3, 2, 3),
    Sketcher.Constraint("Horizontal", 0, 3, 3, 3),
    Sketcher.Constraint("Vertical", 0, 3, 1, 3),
    Sketcher.Constraint("Vertical", 2, 3, 3, 3),
    Sketcher.Constraint("Diameter", 0, Q("1.567 mm")),
    Sketcher.Constraint("DistanceY", 0, 3, -1, 1, Q("2 mm")),
    Sketcher.Constraint("DistanceY", 1, 3, -1, 1, Q("37 mm")),
    Sketcher.Constraint("DistanceX", 2, 3, 1, 3, Q("35 mm")),
    Sketcher.Constraint("DistanceX", -1, 1, 0, 3, Q("18.2 mm")),
])
doc.recompute()
hole2 = doc.addObject("PartDesign::Hole", "Hole001")
body.addObject(hole2)
hole2.Profile = sketch8
hole2.ThreadType = "None"
hole2.Diameter = 1.567
hole2.DepthType = "Dimension"
hole2.Depth = 4.55
hole2.DrillPoint = "Flat"

sketch9 = doc.addObject("Sketcher::SketchObject", "Sketch008")
body.addObject(sketch9)
sketch9.AttachmentSupport = (doc.XY_Plane, [""])
sketch9.MapMode = "FlatFace"
sketch9.AttachmentOffset = App.Placement(Vector(0, 0, -42), App.Rotation())
add_polygon(sketch9, [(24, 22.8), (24, -22.8), (23.2, -22.8), (23.2, 22.8)])
sketch9.addConstraint([
    Sketcher.Constraint("Vertical", 0),
    Sketcher.Constraint("Horizontal", 1),
    Sketcher.Constraint("Vertical", 2),
    Sketcher.Constraint("Horizontal", 3),
    Sketcher.Constraint("DistanceX", 1, 2, 1, 1, Q("0.8 mm")),
    Sketcher.Constraint("DistanceY", 0, 2, 0, 1, Q("45.6 mm")),
    Sketcher.Constraint("DistanceX", -1, 1, 0, 2, Q("24 mm")),
    Sketcher.Constraint("DistanceY", 0, 2, -1, 1, Q("22.8 mm")),
])
pad4 = doc.addObject("PartDesign::Pad", "Pad003")
body.addObject(pad4)
pad4.Profile = sketch9
pad4.Length = 2.8
pad4.Reversed = True

sketch10 = doc.addObject("Sketcher::SketchObject", "Sketch009")
body.addObject(sketch10)
sketch10.AttachmentSupport = (doc.YZ_Plane, [""])
sketch10.MapMode = "FlatFace"
sketch10.AttachmentOffset = App.Placement(Vector(0, 0, 24), App.Rotation())
add_polygon(sketch10, [(-22.8, -11), (-22.8, -44.8), (-20.8, -44.8), (-20.8, -11)])
sketch10.addConstraint([
    Sketcher.Constraint("Vertical", 0),
    Sketcher.Constraint("Horizontal", 1),
    Sketcher.Constraint("Vertical", 2),
    Sketcher.Constraint("Horizontal", 3),
    Sketcher.Constraint("DistanceX", 1, 1, 1, 2, Q("2 mm")),
    Sketcher.Constraint("DistanceY", 0, 2, 0, 1, Q("33.8 mm")),
    Sketcher.Constraint("DistanceY", 2, 2, -1, 1, Q("11 mm")),
    Sketcher.Constraint("DistanceX", 0, 2, -1, 1, Q("22.8 mm")),
])
pocket4 = doc.addObject("PartDesign::Pocket", "Pocket003")
body.addObject(pocket4)
pocket4.Profile = sketch10
pocket4.Length = 0.8

sketch11 = doc.addObject("Sketcher::SketchObject", "Sketch010")
body.addObject(sketch11)
sketch11.AttachmentSupport = (doc.XY_Plane, [""])
sketch11.MapMode = "FlatFace"
sketch11.AttachmentOffset = App.Placement(Vector(0, 0, -42), App.Rotation())
sketch11.addGeometry([
    Part.LineSegment(Vector(-5.2, 22.8, 0), Vector(-15.8, 22.8, 0)),
    Part.LineSegment(Vector(-15.8, 22.8, 0), Vector(-15.8, 27.2, 0)),
    Part.ArcOfCircle(Part.Circle(Vector(-10.5, 27.2, 0), Vector(0, 0, 1), 5.2), math.radians(0), math.radians(180)),
    Part.LineSegment(Vector(-5.2, 27.2, 0), Vector(-5.2, 22.8, 0)),
    Part.Circle(Vector(-10.5, 27.2, 0), Vector(0, 0, 1), 2),
    Part.LineSegment(Vector(-28, 12.3, 0), Vector(-24, 12.3, 0)),
    Part.LineSegment(Vector(-24, 12.3, 0), Vector(-24, 4.3, 0)),
    Part.LineSegment(Vector(-24, 4.3, 0), Vector(-28, 4.3, 0)),
    Part.ArcOfCircle(Part.Circle(Vector(-28, 8.3, 0), Vector(0, 0, 1), 4), math.radians(90), math.radians(270)),
    Part.Circle(Vector(-28, 8.3, 0), Vector(0, 0, 1), 2),
], False)
sketch11.addConstraint([
    Sketcher.Constraint("Coincident", 0, 2, 1, 1),
    Sketcher.Constraint("Tangent", 1, 2, 2, 2),
    Sketcher.Constraint("Tangent", 2, 1, 3, 1),
    Sketcher.Constraint("Coincident", 3, 2, 0, 1),
    Sketcher.Constraint("Coincident", 5, 2, 6, 1),
    Sketcher.Constraint("Coincident", 6, 2, 7, 1),
    Sketcher.Constraint("Tangent", 7, 2, 8, 2),
    Sketcher.Constraint("Tangent", 8, 1, 5, 1),
    Sketcher.Constraint("Horizontal", 0),
    Sketcher.Constraint("Vertical", 1),
    Sketcher.Constraint("Vertical", 3),
    Sketcher.Constraint("Horizontal", 5),
    Sketcher.Constraint("Vertical", 6),
    Sketcher.Constraint("Horizontal", 7),
    Sketcher.Constraint("Coincident", 4, 3, 2, 3),
    Sketcher.Constraint("Coincident", 9, 3, 8, 3),
    Sketcher.Constraint("Equal", 4, 9),
    Sketcher.Constraint("Diameter", 4, Q("4 mm")),
    Sketcher.Constraint("Radius", 8, Q("4 mm")),
    Sketcher.Constraint("DistanceX", 5, 1, 5, 2, Q("4 mm")),
    Sketcher.Constraint("Radius", 2, Q("5.25 mm")),
    Sketcher.Constraint("DistanceX", 8, 3, -1, 1, Q("28 mm")),
    Sketcher.Constraint("DistanceX", 2, 3, -1, 1, Q("10.5 mm")),
    Sketcher.Constraint("DistanceY", -1, 1, 2, 3, Q("27.25 mm")),
    Sketcher.Constraint("DistanceY", -1, 1, 8, 3, Q("8.35 mm")),
    Sketcher.Constraint("DistanceY", 1, 1, 1, 2, Q("4.45 mm")),
])
pad5 = doc.addObject("PartDesign::Pad", "Pad004")
body.addObject(pad5)
pad5.Profile = sketch11
pad5.Length = 0.8

doc.recompute()
